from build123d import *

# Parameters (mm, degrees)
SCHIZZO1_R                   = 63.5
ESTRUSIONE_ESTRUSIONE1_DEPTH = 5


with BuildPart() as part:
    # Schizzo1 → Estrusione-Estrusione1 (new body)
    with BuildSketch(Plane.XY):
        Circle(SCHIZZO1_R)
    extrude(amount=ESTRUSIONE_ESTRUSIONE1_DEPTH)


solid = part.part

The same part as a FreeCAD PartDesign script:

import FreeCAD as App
import Part
import Sketcher

V = App.Vector

doc = App.newDocument("Part")
body = doc.addObject("PartDesign::Body", "Body")

sketch1 = body.newObject("Sketcher::SketchObject", "Sketch")
sketch1.AttachmentSupport = (doc.getObject("XY_Plane"), [""])
sketch1.MapMode = "FlatFace"
sketch1.addGeometry(Part.Circle(V(0, 0, 0), V(0, 0, 1), 63.5), False)
sketch1.addConstraint(Sketcher.Constraint("Coincident", 0, 3, -1, 1))
sketch1.addConstraint(Sketcher.Constraint("Diameter", 0, 127.0))
pad1 = body.newObject("PartDesign::Pad", "Pad")
pad1.Profile = sketch1
pad1.Length = 5

doc.recompute()
